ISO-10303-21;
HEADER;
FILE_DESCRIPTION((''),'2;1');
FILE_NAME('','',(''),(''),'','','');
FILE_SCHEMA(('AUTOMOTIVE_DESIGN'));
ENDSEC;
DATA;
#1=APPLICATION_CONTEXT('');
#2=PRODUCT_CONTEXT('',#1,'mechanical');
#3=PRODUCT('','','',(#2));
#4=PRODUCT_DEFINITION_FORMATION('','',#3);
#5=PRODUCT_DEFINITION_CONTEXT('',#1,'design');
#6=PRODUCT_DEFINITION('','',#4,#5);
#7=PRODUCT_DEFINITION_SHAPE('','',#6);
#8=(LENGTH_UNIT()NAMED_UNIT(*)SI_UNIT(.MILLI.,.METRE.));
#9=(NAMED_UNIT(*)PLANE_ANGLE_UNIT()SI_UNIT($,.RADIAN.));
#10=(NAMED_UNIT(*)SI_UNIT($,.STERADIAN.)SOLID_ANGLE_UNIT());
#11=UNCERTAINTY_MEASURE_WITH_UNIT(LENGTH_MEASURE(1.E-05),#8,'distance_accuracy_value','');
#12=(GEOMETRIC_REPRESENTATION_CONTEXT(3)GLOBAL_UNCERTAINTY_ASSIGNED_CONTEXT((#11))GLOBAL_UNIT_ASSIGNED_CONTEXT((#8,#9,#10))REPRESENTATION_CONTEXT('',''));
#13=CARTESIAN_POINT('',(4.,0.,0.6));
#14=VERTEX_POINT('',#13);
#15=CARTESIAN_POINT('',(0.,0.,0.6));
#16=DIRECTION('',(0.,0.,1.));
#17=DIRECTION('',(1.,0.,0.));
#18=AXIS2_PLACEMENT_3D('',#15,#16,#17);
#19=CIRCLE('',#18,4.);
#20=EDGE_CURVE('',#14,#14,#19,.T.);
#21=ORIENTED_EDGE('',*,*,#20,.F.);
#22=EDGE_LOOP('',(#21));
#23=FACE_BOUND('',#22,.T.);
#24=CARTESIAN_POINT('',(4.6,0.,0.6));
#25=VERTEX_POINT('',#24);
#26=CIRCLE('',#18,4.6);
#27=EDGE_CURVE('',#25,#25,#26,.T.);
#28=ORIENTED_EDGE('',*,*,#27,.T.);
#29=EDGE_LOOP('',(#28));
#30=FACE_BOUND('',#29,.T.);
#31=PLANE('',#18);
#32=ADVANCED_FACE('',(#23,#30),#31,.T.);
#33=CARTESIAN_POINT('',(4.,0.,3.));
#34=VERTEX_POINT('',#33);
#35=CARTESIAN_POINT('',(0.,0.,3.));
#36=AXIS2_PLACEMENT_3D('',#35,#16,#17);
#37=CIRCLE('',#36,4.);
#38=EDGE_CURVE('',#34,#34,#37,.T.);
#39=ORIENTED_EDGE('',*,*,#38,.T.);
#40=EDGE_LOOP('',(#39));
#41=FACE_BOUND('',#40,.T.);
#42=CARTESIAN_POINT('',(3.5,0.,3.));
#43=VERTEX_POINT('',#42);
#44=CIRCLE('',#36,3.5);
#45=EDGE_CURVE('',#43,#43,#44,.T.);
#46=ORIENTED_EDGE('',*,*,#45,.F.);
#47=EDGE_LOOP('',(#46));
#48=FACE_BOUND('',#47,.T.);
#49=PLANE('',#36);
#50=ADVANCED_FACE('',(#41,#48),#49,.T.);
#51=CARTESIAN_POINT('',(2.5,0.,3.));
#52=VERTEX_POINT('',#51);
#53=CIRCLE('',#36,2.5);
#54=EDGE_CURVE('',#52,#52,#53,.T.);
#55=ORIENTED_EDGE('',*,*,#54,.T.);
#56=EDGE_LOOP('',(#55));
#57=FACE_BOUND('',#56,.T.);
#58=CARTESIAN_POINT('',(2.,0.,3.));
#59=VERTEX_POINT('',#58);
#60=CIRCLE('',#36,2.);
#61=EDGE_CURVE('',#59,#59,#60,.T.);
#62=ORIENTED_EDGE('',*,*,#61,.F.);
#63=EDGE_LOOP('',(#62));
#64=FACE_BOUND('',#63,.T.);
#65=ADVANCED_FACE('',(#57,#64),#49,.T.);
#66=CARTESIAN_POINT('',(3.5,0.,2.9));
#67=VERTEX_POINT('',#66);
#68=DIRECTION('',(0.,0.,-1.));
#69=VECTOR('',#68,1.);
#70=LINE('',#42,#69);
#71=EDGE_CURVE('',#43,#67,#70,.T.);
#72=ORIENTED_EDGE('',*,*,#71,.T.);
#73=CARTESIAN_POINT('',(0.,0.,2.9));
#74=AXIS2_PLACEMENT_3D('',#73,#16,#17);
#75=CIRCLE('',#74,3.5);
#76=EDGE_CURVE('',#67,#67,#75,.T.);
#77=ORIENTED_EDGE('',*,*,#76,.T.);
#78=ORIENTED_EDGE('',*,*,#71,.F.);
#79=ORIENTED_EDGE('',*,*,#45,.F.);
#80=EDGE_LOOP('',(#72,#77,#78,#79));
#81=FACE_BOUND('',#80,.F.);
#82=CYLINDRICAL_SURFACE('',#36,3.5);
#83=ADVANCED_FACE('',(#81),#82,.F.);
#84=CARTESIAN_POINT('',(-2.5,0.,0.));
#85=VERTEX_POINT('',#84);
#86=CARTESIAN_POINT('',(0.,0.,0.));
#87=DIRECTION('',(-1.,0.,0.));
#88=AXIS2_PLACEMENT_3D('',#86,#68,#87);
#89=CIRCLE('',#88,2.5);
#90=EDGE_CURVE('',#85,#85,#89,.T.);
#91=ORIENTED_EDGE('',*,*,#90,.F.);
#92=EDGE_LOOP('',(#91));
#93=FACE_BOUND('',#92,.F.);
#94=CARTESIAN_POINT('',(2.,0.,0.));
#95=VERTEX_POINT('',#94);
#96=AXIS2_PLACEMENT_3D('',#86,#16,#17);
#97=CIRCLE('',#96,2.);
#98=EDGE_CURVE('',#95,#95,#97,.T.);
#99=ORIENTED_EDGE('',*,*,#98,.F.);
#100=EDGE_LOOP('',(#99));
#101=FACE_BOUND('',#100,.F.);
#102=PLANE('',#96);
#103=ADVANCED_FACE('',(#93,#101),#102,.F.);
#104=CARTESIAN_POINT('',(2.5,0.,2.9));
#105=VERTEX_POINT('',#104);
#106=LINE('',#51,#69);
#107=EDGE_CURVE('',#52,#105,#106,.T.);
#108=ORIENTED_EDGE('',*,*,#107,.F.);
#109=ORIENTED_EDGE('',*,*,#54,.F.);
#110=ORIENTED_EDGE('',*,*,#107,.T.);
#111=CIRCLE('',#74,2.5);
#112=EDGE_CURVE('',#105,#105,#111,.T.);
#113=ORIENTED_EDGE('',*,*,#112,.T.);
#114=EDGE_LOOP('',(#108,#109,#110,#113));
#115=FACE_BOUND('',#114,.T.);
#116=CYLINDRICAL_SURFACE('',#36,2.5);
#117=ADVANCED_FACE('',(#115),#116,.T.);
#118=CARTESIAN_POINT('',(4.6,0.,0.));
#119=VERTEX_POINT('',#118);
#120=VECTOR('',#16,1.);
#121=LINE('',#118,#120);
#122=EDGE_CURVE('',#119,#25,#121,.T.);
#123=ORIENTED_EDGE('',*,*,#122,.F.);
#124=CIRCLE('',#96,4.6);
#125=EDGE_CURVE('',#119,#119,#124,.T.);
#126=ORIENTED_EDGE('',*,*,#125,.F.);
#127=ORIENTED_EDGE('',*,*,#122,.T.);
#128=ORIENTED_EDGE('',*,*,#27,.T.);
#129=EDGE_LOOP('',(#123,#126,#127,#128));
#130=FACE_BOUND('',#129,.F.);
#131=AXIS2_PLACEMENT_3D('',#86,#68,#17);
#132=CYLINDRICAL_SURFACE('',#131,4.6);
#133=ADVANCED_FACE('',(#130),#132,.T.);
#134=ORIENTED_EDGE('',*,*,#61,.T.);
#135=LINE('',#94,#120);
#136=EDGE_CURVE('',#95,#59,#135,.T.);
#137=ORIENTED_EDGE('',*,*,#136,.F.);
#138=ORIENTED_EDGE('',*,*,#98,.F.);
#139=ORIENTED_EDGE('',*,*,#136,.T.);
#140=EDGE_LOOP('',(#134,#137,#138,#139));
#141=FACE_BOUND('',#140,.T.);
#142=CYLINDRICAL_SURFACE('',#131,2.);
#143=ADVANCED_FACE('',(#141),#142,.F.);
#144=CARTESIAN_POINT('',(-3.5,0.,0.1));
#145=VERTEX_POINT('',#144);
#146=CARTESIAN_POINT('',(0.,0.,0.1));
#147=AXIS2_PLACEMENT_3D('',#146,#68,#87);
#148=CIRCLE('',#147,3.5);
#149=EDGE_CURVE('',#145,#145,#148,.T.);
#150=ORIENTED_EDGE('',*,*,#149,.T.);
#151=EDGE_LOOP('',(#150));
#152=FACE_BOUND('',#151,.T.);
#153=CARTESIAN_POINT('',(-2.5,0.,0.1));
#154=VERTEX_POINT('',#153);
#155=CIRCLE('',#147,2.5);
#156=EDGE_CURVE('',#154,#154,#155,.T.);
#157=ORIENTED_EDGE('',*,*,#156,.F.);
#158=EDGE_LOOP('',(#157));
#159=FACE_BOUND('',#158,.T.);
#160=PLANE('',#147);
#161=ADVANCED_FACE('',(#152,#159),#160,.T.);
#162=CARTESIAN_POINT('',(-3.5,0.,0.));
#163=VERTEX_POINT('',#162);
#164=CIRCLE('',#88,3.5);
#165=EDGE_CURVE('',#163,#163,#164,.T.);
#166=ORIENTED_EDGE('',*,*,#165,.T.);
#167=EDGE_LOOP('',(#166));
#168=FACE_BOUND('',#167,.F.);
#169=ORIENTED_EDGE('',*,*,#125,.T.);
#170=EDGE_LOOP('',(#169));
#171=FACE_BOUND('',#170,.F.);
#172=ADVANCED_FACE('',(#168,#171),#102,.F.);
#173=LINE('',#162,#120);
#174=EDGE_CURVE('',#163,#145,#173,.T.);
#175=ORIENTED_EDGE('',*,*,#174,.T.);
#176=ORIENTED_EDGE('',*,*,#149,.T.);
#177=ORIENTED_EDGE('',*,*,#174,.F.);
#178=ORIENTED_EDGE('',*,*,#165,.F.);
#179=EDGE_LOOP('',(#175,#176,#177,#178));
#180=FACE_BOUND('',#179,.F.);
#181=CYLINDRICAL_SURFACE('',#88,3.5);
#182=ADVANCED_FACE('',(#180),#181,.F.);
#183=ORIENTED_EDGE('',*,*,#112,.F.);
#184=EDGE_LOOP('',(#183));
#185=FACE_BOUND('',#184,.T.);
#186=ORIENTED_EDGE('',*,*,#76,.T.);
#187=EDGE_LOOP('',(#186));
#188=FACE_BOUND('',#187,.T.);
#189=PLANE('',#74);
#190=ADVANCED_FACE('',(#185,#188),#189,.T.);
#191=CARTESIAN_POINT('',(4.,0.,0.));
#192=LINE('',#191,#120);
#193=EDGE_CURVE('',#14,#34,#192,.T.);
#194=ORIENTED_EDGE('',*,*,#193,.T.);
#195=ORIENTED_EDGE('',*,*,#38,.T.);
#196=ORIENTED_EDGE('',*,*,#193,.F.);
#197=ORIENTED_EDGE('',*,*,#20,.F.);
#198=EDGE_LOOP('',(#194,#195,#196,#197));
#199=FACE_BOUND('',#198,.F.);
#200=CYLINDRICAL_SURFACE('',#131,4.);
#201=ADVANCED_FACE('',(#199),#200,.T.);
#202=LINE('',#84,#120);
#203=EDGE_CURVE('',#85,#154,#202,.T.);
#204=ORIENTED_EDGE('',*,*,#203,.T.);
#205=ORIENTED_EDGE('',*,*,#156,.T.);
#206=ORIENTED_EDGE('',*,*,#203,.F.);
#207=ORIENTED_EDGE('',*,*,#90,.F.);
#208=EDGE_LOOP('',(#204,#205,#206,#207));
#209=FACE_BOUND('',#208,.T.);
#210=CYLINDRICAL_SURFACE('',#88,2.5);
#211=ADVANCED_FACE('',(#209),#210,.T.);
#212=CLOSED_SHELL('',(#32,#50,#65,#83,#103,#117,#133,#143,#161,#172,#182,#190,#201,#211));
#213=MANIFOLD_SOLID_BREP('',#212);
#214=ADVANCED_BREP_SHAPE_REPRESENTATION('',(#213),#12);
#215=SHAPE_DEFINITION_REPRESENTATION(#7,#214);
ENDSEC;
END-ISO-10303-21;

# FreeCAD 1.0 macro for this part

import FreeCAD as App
import Part
import Sketcher

V = App.Vector

doc = App.newDocument("Part")
params = doc.addObject("Spreadsheet::Sheet", "Params")
for row, (alias, value) in enumerate([
    ("sketch1_diameter", "8 mm"),
    ("sketch1_diameter2", "4 mm"),
    ("pad1_length", "3 mm"),
    ("sketch2_diameter", "8 mm"),
    ("sketch2_diameter2", "9.2 mm"),
    ("pad2_length", "0.6 mm"),
    ("sketch3_diameter", "7 mm"),
    ("sketch3_diameter2", "5 mm"),
    ("pocket1_length", "0.1 mm"),
    ("sketch4_diameter", "7 mm"),
    ("sketch4_diameter2", "5 mm"),
    ("pocket2_length", "0.1 mm"),
], start=1):
    params.set(f"A{row}", alias)
    params.set(f"B{row}", "=" + value)
    params.setAlias(f"B{row}", alias)

body = doc.addObject("PartDesign::Body", "Body")

sketch1 = doc.addObject("Sketcher::SketchObject", "Sketch")
body.addObject(sketch1)
sketch1.AttachmentSupport = (doc.XY_Plane, [""])
sketch1.MapMode = "FlatFace"
sketch1.addGeometry(Part.Circle(V(0, 0, 0), V(0, 0, 1), 4), False)
sketch1.addGeometry(Part.Circle(V(0, 0, 0), V(0, 0, 1), 2), False)
sketch1.addConstraint(Sketcher.Constraint("Coincident", 0, 3, -1, 1))
sketch1.addConstraint(Sketcher.Constraint("Coincident", 1, 3, -1, 1))
sketch1.addConstraint(Sketcher.Constraint("Diameter", 0, 8.0))
sketch1.addConstraint(Sketcher.Constraint("Diameter", 1, 4.0))
sketch1.setExpression("Constraints[2]", "Params.sketch1_diameter")
sketch1.setExpression("Constraints[3]", "Params.sketch1_diameter2")
pad1 = doc.addObject("PartDesign::Pad", "Pad")
body.addObject(pad1)
pad1.Profile = sketch1
pad1.setExpression("Length", "Params.pad1_length")

sketch2 = doc.addObject("Sketcher::SketchObject", "Sketch001")
body.addObject(sketch2)
sketch2.AttachmentSupport = (doc.XY_Plane, [""])
sketch2.MapMode = "FlatFace"
sketch2.addGeometry(Part.Circle(V(0, 0, 0), V(0, 0, 1), 4.6), False)
sketch2.addGeometry(Part.Circle(V(0, 0, 0), V(0, 0, 1), 4), False)
sketch2.addConstraint(Sketcher.Constraint("Coincident", 0, 3, -1, 1))
sketch2.addConstraint(Sketcher.Constraint("Coincident", 1, 3, -1, 1))
sketch2.addConstraint(Sketcher.Constraint("Diameter", 1, 8.0))
sketch2.addConstraint(Sketcher.Constraint("Diameter", 0, 9.2))
sketch2.setExpression("Constraints[2]", "Params.sketch2_diameter")
sketch2.setExpression("Constraints[3]", "Params.sketch2_diameter2")
pad2 = doc.addObject("PartDesign::Pad", "Pad001")
body.addObject(pad2)
pad2.Profile = sketch2
pad2.setExpression("Length", "Params.pad2_length")

sketch3 = doc.addObject("Sketcher::SketchObject", "Sketch002")
body.addObject(sketch3)
sketch3.AttachmentSupport = (doc.XY_Plane, [""])
sketch3.MapMode = "FlatFace"
sketch3.addGeometry(Part.Circle(V(0, 0, 0), V(0, 0, 1), 3.5), False)
sketch3.addGeometry(Part.Circle(V(0, 0, 0), V(0, 0, 1), 2.5), False)
sketch3.addConstraint(Sketcher.Constraint("Coincident", 0, 3, -1, 1))
sketch3.addConstraint(Sketcher.Constraint("Coincident", 1, 3, -1, 1))
sketch3.addConstraint(Sketcher.Constraint("Diameter", 0, 7.0))
sketch3.addConstraint(Sketcher.Constraint("Diameter", 1, 5.0))
sketch3.setExpression("Constraints[2]", "Params.sketch3_diameter")
sketch3.setExpression("Constraints[3]", "Params.sketch3_diameter2")
pocket1 = doc.addObject("PartDesign::Pocket", "Pocket")
body.addObject(pocket1)
pocket1.Profile = sketch3
pocket1.setExpression("Length", "Params.pocket1_length")
pocket1.Reversed = True

sketch4 = doc.addObject("Sketcher::SketchObject", "Sketch003")
body.addObject(sketch4)
sketch4.AttachmentSupport = (doc.XY_Plane, [""])
sketch4.MapMode = "FlatFace"
sketch4.AttachmentOffset = App.Placement(V(0, 0, 3), App.Rotation())
sketch4.addGeometry(Part.Circle(V(0, 0, 0), V(0, 0, 1), 3.5), False)
sketch4.addGeometry(Part.Circle(V(0, 0, 0), V(0, 0, 1), 2.5), False)
sketch4.addConstraint(Sketcher.Constraint("Coincident", 0, 3, -1, 1))
sketch4.addConstraint(Sketcher.Constraint("Coincident", 1, 3, -1, 1))
sketch4.addConstraint(Sketcher.Constraint("Diameter", 0, 7.0))
sketch4.addConstraint(Sketcher.Constraint("Diameter", 1, 5.0))
sketch4.setExpression("Constraints[2]", "Params.sketch4_diameter")
sketch4.setExpression("Constraints[3]", "Params.sketch4_diameter2")
pocket2 = doc.addObject("PartDesign::Pocket", "Pocket001")
body.addObject(pocket2)
pocket2.Profile = sketch4
pocket2.setExpression("Length", "Params.pocket2_length")

doc.recompute()
